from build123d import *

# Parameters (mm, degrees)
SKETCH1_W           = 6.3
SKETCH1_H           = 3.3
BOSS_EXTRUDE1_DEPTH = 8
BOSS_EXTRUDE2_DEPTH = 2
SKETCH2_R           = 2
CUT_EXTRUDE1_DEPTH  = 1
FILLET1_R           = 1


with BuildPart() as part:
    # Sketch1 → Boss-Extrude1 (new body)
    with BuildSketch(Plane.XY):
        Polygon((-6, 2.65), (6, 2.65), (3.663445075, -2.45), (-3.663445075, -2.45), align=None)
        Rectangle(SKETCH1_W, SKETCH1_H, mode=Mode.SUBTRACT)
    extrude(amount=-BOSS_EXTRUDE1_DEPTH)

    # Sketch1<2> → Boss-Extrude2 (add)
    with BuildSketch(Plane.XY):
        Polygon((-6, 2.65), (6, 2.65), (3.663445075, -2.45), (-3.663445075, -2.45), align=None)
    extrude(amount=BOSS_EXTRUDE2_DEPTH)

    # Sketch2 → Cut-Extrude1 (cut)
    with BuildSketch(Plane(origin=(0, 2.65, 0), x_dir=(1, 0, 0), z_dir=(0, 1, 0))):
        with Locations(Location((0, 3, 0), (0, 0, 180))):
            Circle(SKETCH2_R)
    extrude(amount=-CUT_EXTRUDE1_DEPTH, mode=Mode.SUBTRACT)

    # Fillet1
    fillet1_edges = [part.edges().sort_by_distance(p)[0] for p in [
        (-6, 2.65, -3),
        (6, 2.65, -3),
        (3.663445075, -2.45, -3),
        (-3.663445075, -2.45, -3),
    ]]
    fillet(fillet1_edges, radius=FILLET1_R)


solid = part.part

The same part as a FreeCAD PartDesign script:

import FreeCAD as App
import Part
import Sketcher
Q = App.Units.Quantity


def edges_at(feature, points):
    """Names of the edges that pass closest to the given points."""
    edges = feature.Shape.Edges
    near = lambda p: min(range(len(edges)), key=lambda i: edges[i].distToShape(Part.Vertex(*p))[0])
    return sorted({f"Edge{near(p) + 1}" for p in points})

doc = App.newDocument("Part")
body = doc.addObject("PartDesign::Body", "Body")

sketch1 = body.newObject("Sketcher::SketchObject", "Sketch")
sketch1.AttachmentSupport = (doc.getObject("XY_Plane"), [""])
sketch1.MapMode = "FlatFace"
sketch1.addGeometry(Part.LineSegment(App.Vector(6, 2.6, 0), App.Vector(-6, 2.6, 0)), False)
sketch1.addGeometry(Part.LineSegment(App.Vector(-6, 2.6, 0), App.Vector(-3.7, -2.5, 0)), False)
sketch1.addGeometry(Part.LineSegment(App.Vector(-3.7, -2.5, 0), App.Vector(3.7, -2.5, 0)), False)
sketch1.addGeometry(Part.LineSegment(App.Vector(3.7, -2.5, 0), App.Vector(6, 2.6, 0)), False)
sketch1.addGeometry(Part.LineSegment(App.Vector(-3.1, -1.6, 0), App.Vector(-3.1, 1.6, 0)), False)
sketch1.addGeometry(Part.LineSegment(App.Vector(-3.1, 1.6, 0), App.Vector(3.1, 1.6, 0)), False)
sketch1.addGeometry(Part.LineSegment(App.Vector(3.1, 1.6, 0), App.Vector(3.1, -1.6, 0)), False)
sketch1.addGeometry(Part.LineSegment(App.Vector(3.1, -1.6, 0), App.Vector(-3.1, -1.6, 0)), False)
sketch1.addConstraint(Sketcher.Constraint("Coincident", 0, 2, 1, 1))
sketch1.addConstraint(Sketcher.Constraint("Coincident", 1, 2, 2, 1))
sketch1.addConstraint(Sketcher.Constraint("Coincident", 2, 2, 3, 1))
sketch1.addConstraint(Sketcher.Constraint("Coincident", 3, 2, 0, 1))
sketch1.addConstraint(Sketcher.Constraint("Coincident", 4, 2, 5, 1))
sketch1.addConstraint(Sketcher.Constraint("Coincident", 5, 2, 6, 1))
sketch1.addConstraint(Sketcher.Constraint("Coincident", 6, 2, 7, 1))
sketch1.addConstraint(Sketcher.Constraint("Coincident", 7, 2, 4, 1))
sketch1.addConstraint(Sketcher.Constraint("Horizontal", 0))
sketch1.addConstraint(Sketcher.Constraint("Horizontal", 2))
sketch1.addConstraint(Sketcher.Constraint("Vertical", 4))
sketch1.addConstraint(Sketcher.Constraint("Horizontal", 5))
sketch1.addConstraint(Sketcher.Constraint("Vertical", 6))
sketch1.addConstraint(Sketcher.Constraint("Horizontal", 7))
sketch1.addConstraint(Sketcher.Constraint("Symmetric", 4, 2, 6, 2, -1, 1))
sketch1.addConstraint(Sketcher.Constraint("Equal", 1, 3))
sketch1.addConstraint(Sketcher.Constraint("DistanceX", 0, 2, 0, 1, Q("12 mm")))
sketch1.addConstraint(Sketcher.Constraint("DistanceX", 5, 1, 5, 2, Q("6.3 mm")))
sketch1.addConstraint(Sketcher.Constraint("DistanceY", 4, 1, 4, 2, Q("3.3 mm")))
sketch1.addConstraint(Sketcher.Constraint("DistanceX", 0, 2, -1, 1, Q("6 mm")))
sketch1.addConstraint(Sketcher.Constraint("DistanceY", 4, 2, 0, 2, Q("1 mm")))
sketch1.addConstraint(Sketcher.Constraint("DistanceY", 1, 2, 0, 2, Q("5.1 mm")))
sketch1.addConstraint(Sketcher.Constraint("DistanceX", 2, 1, 2, 2, Q("7.32689 mm")))
pad1 = body.newObject("PartDesign::Pad", "Pad")
pad1.Profile = sketch1
pad1.Length = 8
pad1.Reversed = True

sketch2 = body.newObject("Sketcher::SketchObject", "Sketch001")
sketch2.AttachmentSupport = (doc.getObject("XY_Plane"), [""])
sketch2.MapMode = "FlatFace"
sketch2.addGeometry(Part.LineSegment(App.Vector(6, 3, 0), App.Vector(-6, 3, 0)), False)
sketch2.addGeometry(Part.LineSegment(App.Vector(-6, 3, 0), App.Vector(-4, -2, 0)), False)
sketch2.addGeometry(Part.LineSegment(App.Vector(-4, -2, 0), App.Vector(4, -2, 0)), False)
sketch2.addGeometry(Part.LineSegment(App.Vector(4, -2, 0), App.Vector(6, 3, 0)), False)
sketch2.addConstraint(Sketcher.Constraint("Coincident", 0, 2, 1, 1))
sketch2.addConstraint(Sketcher.Constraint("Coincident", 1, 2, 2, 1))
sketch2.addConstraint(Sketcher.Constraint("Coincident", 2, 2, 3, 1))
sketch2.addConstraint(Sketcher.Constraint("Coincident", 3, 2, 0, 1))
sketch2.addConstraint(Sketcher.Constraint("Horizontal", 0))
sketch2.addConstraint(Sketcher.Constraint("Horizontal", 2))
sketch2.addConstraint(Sketcher.Constraint("Equal", 1, 3))
sketch2.addConstraint(Sketcher.Constraint("DistanceX", 0, 2, 0, 1, Q("12 mm")))
sketch2.addConstraint(Sketcher.Constraint("DistanceX", 0, 2, -1, 1, Q("6 mm")))
sketch2.addConstraint(Sketcher.Constraint("DistanceY", 1, 2, 0, 2, Q("5.1 mm")))
sketch2.addConstraint(Sketcher.Constraint("DistanceY", -1, 1, 0, 2, Q("2.65 mm")))
sketch2.addConstraint(Sketcher.Constraint("DistanceX", 2, 1, 2, 2, Q("7.32689 mm")))
pad2 = body.newObject("PartDesign::Pad", "Pad001")
pad2.Profile = sketch2
pad2.Length = 2

sketch3 = body.newObject("Sketcher::SketchObject", "Sketch002")
sketch3.AttachmentSupport = (doc.getObject("XZ_Plane"), [""])
sketch3.MapMode = "FlatFace"
sketch3.AttachmentOffset = App.Placement(App.Vector(0, 0, -2.65), App.Rotation())
sketch3.addGeometry(Part.Circle(App.Vector(0, -3, 0), App.Vector(0, 0, 1), 2), False)
sketch3.addConstraint(Sketcher.Constraint("PointOnObject", 0, 3, -2))
sketch3.addConstraint(Sketcher.Constraint("Diameter", 0, Q("4 mm")))
sketch3.addConstraint(Sketcher.Constraint("DistanceY", 0, 3, -1, 1, Q("3 mm")))
pocket1 = body.newObject("PartDesign::Pocket", "Pocket")
pocket1.Profile = sketch3
pocket1.Length = 1
pocket1.Reversed = True
doc.recompute()

fillet = body.newObject("PartDesign::Fillet", "Fillet")
fillet.Base = (pocket1, edges_at(pocket1, [
    (-6, 2.65, -3),
    (6, 2.65, -3),
    (3.663, -2.45, -3),
    (-3.663, -2.45, -3),
]))
fillet.Radius = 1

doc.recompute()
